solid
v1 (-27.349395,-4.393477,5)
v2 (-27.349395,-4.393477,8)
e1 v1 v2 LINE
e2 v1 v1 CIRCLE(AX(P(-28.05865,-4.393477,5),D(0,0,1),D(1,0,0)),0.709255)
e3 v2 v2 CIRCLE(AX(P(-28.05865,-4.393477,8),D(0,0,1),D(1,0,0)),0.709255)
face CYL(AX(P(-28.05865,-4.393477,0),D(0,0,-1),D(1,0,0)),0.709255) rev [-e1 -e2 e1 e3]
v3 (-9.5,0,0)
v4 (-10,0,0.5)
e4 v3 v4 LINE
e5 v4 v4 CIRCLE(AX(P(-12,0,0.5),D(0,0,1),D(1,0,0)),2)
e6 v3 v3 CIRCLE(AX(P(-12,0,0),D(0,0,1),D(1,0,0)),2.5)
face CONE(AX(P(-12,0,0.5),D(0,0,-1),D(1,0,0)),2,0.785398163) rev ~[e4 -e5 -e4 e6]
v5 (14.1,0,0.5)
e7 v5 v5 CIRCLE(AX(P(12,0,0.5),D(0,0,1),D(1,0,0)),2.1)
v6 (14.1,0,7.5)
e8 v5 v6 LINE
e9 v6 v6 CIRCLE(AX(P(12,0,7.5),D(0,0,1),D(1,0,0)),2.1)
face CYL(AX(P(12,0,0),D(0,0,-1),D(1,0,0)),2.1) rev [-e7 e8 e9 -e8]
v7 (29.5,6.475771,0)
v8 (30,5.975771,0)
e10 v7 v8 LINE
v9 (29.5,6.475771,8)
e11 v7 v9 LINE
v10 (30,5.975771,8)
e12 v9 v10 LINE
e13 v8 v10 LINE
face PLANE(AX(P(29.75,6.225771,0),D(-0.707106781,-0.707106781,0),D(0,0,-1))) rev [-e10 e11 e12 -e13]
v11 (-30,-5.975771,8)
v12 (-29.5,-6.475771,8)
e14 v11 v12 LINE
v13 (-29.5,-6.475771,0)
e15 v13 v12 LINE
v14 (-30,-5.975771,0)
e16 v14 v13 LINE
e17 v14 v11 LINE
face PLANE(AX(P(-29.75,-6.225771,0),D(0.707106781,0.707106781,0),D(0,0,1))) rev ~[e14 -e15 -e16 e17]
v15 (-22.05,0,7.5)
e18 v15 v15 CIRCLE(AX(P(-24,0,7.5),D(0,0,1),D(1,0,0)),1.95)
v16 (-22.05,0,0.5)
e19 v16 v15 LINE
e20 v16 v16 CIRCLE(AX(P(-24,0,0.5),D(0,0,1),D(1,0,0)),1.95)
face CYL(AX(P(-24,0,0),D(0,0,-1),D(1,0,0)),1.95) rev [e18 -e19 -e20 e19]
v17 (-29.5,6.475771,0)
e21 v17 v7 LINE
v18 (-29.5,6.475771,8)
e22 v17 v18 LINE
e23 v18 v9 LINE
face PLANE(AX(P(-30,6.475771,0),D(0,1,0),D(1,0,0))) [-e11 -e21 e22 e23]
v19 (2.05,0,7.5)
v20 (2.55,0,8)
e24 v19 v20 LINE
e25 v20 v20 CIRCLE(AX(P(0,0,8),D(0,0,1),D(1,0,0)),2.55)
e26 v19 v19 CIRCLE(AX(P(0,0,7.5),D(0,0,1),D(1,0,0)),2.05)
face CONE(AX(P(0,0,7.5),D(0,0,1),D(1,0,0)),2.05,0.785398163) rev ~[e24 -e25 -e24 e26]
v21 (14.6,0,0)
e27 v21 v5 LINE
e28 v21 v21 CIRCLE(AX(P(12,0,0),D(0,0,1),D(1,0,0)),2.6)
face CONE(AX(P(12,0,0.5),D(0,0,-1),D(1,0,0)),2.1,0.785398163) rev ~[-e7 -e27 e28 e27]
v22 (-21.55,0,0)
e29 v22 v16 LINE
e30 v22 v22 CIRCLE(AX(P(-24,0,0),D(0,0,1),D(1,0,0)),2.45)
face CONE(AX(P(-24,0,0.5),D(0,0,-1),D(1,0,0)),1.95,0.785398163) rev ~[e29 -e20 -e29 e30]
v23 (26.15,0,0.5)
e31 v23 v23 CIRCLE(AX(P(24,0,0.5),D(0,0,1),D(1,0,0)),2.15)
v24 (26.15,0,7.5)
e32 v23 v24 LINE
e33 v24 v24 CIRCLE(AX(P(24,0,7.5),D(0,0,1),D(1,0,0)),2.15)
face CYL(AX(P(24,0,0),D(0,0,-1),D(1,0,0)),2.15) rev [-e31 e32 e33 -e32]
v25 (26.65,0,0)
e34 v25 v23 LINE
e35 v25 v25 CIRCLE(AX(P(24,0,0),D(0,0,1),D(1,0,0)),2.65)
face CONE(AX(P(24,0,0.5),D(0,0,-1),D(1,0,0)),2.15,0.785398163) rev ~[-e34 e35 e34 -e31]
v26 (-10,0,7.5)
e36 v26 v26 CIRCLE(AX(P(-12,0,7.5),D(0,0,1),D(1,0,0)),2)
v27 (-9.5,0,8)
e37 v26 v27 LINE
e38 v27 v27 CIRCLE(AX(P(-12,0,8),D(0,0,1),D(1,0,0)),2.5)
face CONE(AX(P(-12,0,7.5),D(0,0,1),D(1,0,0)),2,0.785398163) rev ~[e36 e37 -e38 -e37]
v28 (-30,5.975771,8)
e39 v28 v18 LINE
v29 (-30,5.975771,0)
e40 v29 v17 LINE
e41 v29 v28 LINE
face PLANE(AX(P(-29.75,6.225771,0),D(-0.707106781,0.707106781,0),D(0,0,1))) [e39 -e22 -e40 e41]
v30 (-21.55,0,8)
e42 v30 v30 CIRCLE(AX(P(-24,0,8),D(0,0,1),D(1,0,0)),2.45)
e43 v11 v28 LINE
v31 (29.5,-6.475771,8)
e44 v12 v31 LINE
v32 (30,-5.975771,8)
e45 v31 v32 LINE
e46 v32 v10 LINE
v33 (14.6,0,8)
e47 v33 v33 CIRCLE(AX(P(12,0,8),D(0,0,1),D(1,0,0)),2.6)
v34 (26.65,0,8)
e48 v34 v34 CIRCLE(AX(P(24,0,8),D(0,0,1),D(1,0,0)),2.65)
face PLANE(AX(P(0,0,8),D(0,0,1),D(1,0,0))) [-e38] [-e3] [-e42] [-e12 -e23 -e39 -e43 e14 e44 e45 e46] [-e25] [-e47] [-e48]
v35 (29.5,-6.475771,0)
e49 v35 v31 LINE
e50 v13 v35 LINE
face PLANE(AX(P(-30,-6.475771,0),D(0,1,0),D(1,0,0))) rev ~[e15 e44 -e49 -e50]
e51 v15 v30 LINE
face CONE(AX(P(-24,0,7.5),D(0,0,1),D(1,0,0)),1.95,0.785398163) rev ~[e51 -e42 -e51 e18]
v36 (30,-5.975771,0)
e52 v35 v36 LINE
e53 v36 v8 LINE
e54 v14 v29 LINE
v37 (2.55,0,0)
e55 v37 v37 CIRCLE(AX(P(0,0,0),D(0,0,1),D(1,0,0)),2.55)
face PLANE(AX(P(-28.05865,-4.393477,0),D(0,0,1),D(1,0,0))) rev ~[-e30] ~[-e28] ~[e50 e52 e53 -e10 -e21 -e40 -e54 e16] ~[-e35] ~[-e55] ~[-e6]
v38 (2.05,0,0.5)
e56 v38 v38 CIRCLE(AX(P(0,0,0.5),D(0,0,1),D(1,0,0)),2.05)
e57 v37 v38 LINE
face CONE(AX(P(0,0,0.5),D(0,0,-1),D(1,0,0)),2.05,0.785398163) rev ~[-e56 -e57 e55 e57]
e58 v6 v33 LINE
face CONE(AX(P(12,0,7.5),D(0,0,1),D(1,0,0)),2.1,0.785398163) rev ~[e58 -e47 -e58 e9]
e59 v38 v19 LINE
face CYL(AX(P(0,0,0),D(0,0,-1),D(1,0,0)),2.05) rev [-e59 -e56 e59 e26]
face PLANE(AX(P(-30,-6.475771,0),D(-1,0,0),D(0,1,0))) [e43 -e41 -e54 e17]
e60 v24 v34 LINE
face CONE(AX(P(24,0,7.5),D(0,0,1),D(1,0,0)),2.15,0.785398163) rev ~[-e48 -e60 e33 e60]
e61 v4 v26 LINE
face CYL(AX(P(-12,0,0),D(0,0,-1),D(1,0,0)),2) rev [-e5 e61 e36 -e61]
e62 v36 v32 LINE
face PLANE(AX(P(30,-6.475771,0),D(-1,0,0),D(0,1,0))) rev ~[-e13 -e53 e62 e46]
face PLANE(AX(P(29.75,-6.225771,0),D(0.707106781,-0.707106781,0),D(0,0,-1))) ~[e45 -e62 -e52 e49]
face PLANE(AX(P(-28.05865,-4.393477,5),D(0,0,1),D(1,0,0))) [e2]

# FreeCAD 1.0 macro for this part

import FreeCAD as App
import Part
import Sketcher
from FreeCAD import Vector


def edges_at(feature, points):
    """Names of the edges that pass closest to the given points."""
    edges = feature.Shape.Edges
    near = lambda p: min(range(len(edges)), key=lambda i: edges[i].distToShape(Part.Vertex(*p))[0])
    return sorted({f"Edge{near(p) + 1}" for p in points})


def add_polygon(sketch, points):
    """Adds a closed chain of lines whose ends are joined by coincident constraints."""
    first, n = sketch.GeometryCount, len(points)
    for a, b in zip(points, points[1:] + points[:1]):
        sketch.addGeometry(Part.LineSegment(App.Vector(*a, 0), App.Vector(*b, 0)), False)
    for i in range(n):
        sketch.addConstraint(Sketcher.Constraint("Coincident", first + i, 2, first + (i + 1) % n, 1))

doc = App.newDocument("Part")
body = doc.addObject("PartDesign::Body", "Body")

# Sketch on XY plane
sketch1 = body.newObject("Sketcher::SketchObject", "Sketch")
sketch1.AttachmentSupport = (doc.getObject("XY_Plane"), [""])
sketch1.MapMode = "FlatFace"
add_polygon(sketch1, [(-30, 6.5), (-30, -6.5), (30, -6.5), (30, 6.5)])  # lines 0-3
sketch1.addGeometry(Part.Circle(Vector(-28.1, -4.4, 0), Vector(0, 0, 1), 0.7), False)  # 4
sketch1.addGeometry(Part.Circle(Vector(-24, 0, 0), Vector(0, 0, 1), 1.9), False)  # 5
sketch1.addGeometry(Part.Circle(Vector(-12, 0, 0), Vector(0, 0, 1), 2), False)  # 6
sketch1.addGeometry(Part.Circle(Vector(0, 0, 0), Vector(0, 0, 1), 2), False)  # 7
sketch1.addGeometry(Part.Circle(Vector(12, 0, 0), Vector(0, 0, 1), 2.1), False)  # 8
sketch1.addGeometry(Part.Circle(Vector(24, 0, 0), Vector(0, 0, 1), 2.1), False)  # 9
sketch1.addConstraint(Sketcher.Constraint("Vertical", 0))
sketch1.addConstraint(Sketcher.Constraint("Horizontal", 1))
sketch1.addConstraint(Sketcher.Constraint("Vertical", 2))
sketch1.addConstraint(Sketcher.Constraint("Horizontal", 3))
sketch1.addConstraint(Sketcher.Constraint("Coincident", 7, 3, -1, 1))
sketch1.addConstraint(Sketcher.Constraint("Symmetric", 6, 3, 8, 3, -1, 1))
sketch1.addConstraint(Sketcher.Constraint("Symmetric", 5, 3, 9, 3, -1, 1))
sketch1.addConstraint(Sketcher.Constraint("Symmetric", 0, 2, 2, 2, -1, 1))
sketch1.addConstraint(Sketcher.Constraint("PointOnObject", 5, 3, -1))
sketch1.addConstraint(Sketcher.Constraint("PointOnObject", 6, 3, -1))
sketch1.addConstraint(Sketcher.Constraint("Diameter", 6, 4.0))
sketch1.addConstraint(Sketcher.Constraint("Diameter", 5, 3.9))
sketch1.addConstraint(Sketcher.Constraint("Diameter", 7, 4.1))
sketch1.addConstraint(Sketcher.Constraint("Diameter", 8, 4.2))
sketch1.addConstraint(Sketcher.Constraint("Diameter", 9, 4.3))
sketch1.addConstraint(Sketcher.Constraint("DistanceX", 1, 1, 1, 2, 60.0))
sketch1.addConstraint(Sketcher.Constraint("DistanceX", 5, 3, -1, 1, 24.0))
sketch1.addConstraint(Sketcher.Constraint("DistanceX", 6, 3, -1, 1, 12.0))
sketch1.addConstraint(Sketcher.Constraint("Diameter", 4, 1.41851))
sketch1.addConstraint(Sketcher.Constraint("DistanceY", 0, 2, 0, 1, 12.951542))
sketch1.addConstraint(Sketcher.Constraint("DistanceX", 4, 3, -1, 1, 28.05865))
sketch1.addConstraint(Sketcher.Constraint("DistanceY", 4, 3, -1, 1, 4.393477))
pad1 = body.newObject("PartDesign::Pad", "Pad")
pad1.Profile = sketch1
pad1.Length = 8

# Sketch on XY plane
sketch2 = body.newObject("Sketcher::SketchObject", "Sketch001")
sketch2.AttachmentSupport = (doc.getObject("XY_Plane"), [""])
sketch2.MapMode = "FlatFace"
sketch2.addGeometry(Part.Circle(Vector(-28.1, -4.4, 0), Vector(0, 0, 1), 0.7), False)
sketch2.addConstraint(Sketcher.Constraint("Diameter", 0, 1.41851))
sketch2.addConstraint(Sketcher.Constraint("DistanceX", 0, 3, -1, 1, 28.05865))
sketch2.addConstraint(Sketcher.Constraint("DistanceY", 0, 3, -1, 1, 4.393477))
pad2 = body.newObject("PartDesign::Pad", "Pad001")
pad2.Profile = sketch2
pad2.Length = 5
doc.recompute()

chamfer = body.newObject("PartDesign::Chamfer", "Chamfer")
chamfer.Base = (pad2, edges_at(pad2, [
    (-25.95, 0, 8),
    (-14, 0, 8),
    (-2.05, 0, 8),
    (9.9, 0, 8),
    (21.85, 0, 8),
    (21.85, 0, 0),
    (9.9, 0, 0),
    (-2.05, 0, 0),
    (-14, 0, 0),
    (-25.95, 0, 0),
    (-30, -6.476, 4),
    (-30, 6.476, 4),
    (30, 6.476, 4),
    (30, -6.476, 4),
]))
chamfer.Size = 0.5

doc.recompute()
